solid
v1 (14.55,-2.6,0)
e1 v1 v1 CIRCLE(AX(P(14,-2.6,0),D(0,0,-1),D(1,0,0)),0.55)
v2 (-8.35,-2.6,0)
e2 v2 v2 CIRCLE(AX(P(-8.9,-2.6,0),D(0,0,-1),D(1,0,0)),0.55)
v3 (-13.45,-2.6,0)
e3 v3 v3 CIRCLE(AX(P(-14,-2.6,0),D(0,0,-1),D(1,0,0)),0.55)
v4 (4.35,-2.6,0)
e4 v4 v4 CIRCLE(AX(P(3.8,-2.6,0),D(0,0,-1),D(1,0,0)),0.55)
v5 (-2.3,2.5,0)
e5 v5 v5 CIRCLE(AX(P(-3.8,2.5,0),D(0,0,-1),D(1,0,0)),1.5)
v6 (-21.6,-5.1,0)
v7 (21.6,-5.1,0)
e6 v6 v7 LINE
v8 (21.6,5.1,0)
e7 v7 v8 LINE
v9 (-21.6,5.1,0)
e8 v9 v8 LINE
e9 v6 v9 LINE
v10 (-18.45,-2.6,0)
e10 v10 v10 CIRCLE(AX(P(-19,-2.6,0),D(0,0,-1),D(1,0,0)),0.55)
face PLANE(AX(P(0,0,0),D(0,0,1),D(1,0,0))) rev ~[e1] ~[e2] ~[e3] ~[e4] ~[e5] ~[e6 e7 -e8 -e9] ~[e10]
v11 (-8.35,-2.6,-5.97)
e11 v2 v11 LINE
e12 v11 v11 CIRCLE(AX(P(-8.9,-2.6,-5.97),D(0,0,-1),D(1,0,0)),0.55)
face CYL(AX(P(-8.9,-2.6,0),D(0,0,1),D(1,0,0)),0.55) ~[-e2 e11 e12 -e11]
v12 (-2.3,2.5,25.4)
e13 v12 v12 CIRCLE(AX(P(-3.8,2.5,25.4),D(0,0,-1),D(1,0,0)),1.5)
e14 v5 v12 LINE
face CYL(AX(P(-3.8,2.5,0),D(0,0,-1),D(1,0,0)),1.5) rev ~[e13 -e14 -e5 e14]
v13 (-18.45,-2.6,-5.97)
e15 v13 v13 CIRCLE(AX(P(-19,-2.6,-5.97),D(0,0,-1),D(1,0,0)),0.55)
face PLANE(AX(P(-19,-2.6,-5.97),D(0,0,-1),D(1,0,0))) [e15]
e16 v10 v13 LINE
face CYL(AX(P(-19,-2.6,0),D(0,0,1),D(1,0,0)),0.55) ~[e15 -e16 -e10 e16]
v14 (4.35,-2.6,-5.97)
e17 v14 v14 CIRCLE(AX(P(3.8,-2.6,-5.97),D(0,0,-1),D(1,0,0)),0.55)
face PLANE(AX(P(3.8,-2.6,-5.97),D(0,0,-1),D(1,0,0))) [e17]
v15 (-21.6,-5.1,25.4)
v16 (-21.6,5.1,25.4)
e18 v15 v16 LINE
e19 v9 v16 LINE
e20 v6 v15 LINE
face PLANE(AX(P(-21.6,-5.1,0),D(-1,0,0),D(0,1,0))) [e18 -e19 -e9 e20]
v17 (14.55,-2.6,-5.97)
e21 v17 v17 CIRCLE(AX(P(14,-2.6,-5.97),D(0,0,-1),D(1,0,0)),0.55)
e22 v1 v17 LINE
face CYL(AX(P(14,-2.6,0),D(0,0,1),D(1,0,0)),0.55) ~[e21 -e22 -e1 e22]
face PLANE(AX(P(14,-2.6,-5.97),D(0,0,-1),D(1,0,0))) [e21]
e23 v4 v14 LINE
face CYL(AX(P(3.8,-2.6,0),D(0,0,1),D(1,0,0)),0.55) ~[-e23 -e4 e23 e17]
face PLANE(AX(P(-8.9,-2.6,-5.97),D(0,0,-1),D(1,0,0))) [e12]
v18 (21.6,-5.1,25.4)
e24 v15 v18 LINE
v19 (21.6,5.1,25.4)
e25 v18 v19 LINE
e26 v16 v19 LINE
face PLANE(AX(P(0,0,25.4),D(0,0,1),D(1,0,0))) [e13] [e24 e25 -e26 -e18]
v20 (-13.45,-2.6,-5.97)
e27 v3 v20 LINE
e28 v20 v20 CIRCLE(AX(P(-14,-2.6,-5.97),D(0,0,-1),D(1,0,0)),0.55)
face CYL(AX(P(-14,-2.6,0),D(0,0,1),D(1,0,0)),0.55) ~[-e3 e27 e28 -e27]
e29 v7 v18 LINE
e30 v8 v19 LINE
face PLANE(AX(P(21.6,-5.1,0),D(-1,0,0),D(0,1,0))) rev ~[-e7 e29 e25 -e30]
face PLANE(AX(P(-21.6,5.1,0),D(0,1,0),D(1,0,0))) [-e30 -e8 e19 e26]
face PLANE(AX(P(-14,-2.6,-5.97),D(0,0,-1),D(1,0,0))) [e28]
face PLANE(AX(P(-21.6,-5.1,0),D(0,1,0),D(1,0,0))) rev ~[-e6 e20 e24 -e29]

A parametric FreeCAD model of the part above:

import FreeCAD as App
import Part
import Sketcher

V = App.Vector
Q = App.Units.Quantity


def add_polygon(sketch, points):
    """Adds a closed chain of lines whose ends are joined by coincident constraints."""
    first, n = sketch.GeometryCount, len(points)
    for a, b in zip(points, points[1:] + points[:1]):
        sketch.addGeometry(Part.LineSegment(App.Vector(*a, 0), App.Vector(*b, 0)), False)
    for i in range(n):
        sketch.addConstraint(Sketcher.Constraint("Coincident", first + i, 2, first + (i + 1) % n, 1))

doc = App.newDocument("Part")
params = doc.addObject("Spreadsheet::Sheet", "Params")
for row, (alias, value) in enumerate([
    ("sketch1_width", "43.2 mm"),
    ("sketch1_height", "10.2 mm"),
    ("pad1_length", "25.4 mm"),
    ("sketch2_diameter", "1.1 mm"),
    ("pad2_length", "5.97 mm"),
    ("sketch3_diameter", "3 mm"),
], start=1):
    params.set(f"A{row}", alias)
    params.set(f"B{row}", "=" + value)
    params.setAlias(f"B{row}", alias)

body = doc.addObject("PartDesign::Body", "Body")

sketch1 = body.newObject("Sketcher::SketchObject", "Sketch")
sketch1.AttachmentSupport = (doc.getObject("XY_Plane"), [""])
sketch1.MapMode = "FlatFace"
add_polygon(sketch1, [(-22, 5), (-22, -5), (22, -5), (22, 5)])
sketch1.addConstraint([
    Sketcher.Constraint("Vertical", 0),
    Sketcher.Constraint("Horizontal", 1),
    Sketcher.Constraint("Vertical", 2),
    Sketcher.Constraint("Horizontal", 3),
    Sketcher.Constraint("Symmetric", 0, 2, 2, 2, -1, 1),
    Sketcher.Constraint("DistanceX", 1, 1, 1, 2, Q("43.2 mm")),
    Sketcher.Constraint("DistanceY", 0, 2, 0, 1, Q("10.2 mm")),
])
sketch1.setExpression("Constraints[9]", "Params.sketch1_width")
sketch1.setExpression("Constraints[10]", "Params.sketch1_height")
pad1 = body.newObject("PartDesign::Pad", "Pad")
pad1.Profile = sketch1
pad1.setExpression("Length", "Params.pad1_length")

sketch2 = body.newObject("Sketcher::SketchObject", "Sketch001")
sketch2.AttachmentSupport = (doc.getObject("XY_Plane"), [""])
sketch2.MapMode = "FlatFace"
sketch2.addGeometry([
    Part.Circle(V(14, -2.6, 0), V(0, 0, 1), 0.6),
    Part.Circle(V(3.8, -2.6, 0), V(0, 0, 1), 0.6),
    Part.Circle(V(-8.9, -2.6, 0), V(0, 0, 1), 0.6),
    Part.Circle(V(-14, -2.6, 0), V(0, 0, 1), 0.6),
    Part.Circle(V(-19, -2.6, 0), V(0, 0, 1), 0.6),
], False)
sketch2.addConstraint([
    Sketcher.Constraint("Equal", 0, 1),
    Sketcher.Constraint("Equal", 1, 2),
    Sketcher.Constraint("Equal", 2, 3),
    Sketcher.Constraint("Equal", 3, 4),
    Sketcher.Constraint("Symmetric", 0, 3, 3, 3, -2),
    Sketcher.Constraint("Horizontal", 0, 3, 1, 3),
    Sketcher.Constraint("Horizontal", 1, 3, 2, 3),
    Sketcher.Constraint("Horizontal", 3, 3, 4, 3),
    Sketcher.Constraint("Diameter", 0, Q("1.1 mm")),
    Sketcher.Constraint("DistanceX", -1, 1, 0, 3, Q("14 mm")),
    Sketcher.Constraint("DistanceX", 4, 3, -1, 1, Q("19 mm")),
    Sketcher.Constraint("DistanceY", 0, 3, -1, 1, Q("2.6 mm")),
    Sketcher.Constraint("DistanceX", -1, 1, 1, 3, Q("3.8 mm")),
    Sketcher.Constraint("DistanceX", 2, 3, -1, 1, Q("8.9 mm")),
])
sketch2.setExpression("Constraints[8]", "Params.sketch2_diameter")
pad2 = body.newObject("PartDesign::Pad", "Pad001")
pad2.Profile = sketch2
pad2.setExpression("Length", "Params.pad2_length")
pad2.Reversed = True

sketch3 = body.newObject("Sketcher::SketchObject", "Sketch002")
sketch3.AttachmentSupport = (doc.getObject("XY_Plane"), [""])
sketch3.MapMode = "FlatFace"
sketch3.addGeometry(Part.Circle(V(-3.8, 2.5, 0), V(0, 0, 1), 1.5), False)
sketch3.addConstraint([
    Sketcher.Constraint("Diameter", 0, Q("3 mm")),
    Sketcher.Constraint("DistanceX", 0, 3, -1, 1, Q("3.8 mm")),
    Sketcher.Constraint("DistanceY", -1, 1, 0, 3, Q("2.5 mm")),
])
sketch3.setExpression("Constraints[0]", "Params.sketch3_diameter")
pocket1 = body.newObject("PartDesign::Pocket", "Pocket")
pocket1.Profile = sketch3
pocket1.Type = "ThroughAll"
pocket1.Reversed = True

doc.recompute()
